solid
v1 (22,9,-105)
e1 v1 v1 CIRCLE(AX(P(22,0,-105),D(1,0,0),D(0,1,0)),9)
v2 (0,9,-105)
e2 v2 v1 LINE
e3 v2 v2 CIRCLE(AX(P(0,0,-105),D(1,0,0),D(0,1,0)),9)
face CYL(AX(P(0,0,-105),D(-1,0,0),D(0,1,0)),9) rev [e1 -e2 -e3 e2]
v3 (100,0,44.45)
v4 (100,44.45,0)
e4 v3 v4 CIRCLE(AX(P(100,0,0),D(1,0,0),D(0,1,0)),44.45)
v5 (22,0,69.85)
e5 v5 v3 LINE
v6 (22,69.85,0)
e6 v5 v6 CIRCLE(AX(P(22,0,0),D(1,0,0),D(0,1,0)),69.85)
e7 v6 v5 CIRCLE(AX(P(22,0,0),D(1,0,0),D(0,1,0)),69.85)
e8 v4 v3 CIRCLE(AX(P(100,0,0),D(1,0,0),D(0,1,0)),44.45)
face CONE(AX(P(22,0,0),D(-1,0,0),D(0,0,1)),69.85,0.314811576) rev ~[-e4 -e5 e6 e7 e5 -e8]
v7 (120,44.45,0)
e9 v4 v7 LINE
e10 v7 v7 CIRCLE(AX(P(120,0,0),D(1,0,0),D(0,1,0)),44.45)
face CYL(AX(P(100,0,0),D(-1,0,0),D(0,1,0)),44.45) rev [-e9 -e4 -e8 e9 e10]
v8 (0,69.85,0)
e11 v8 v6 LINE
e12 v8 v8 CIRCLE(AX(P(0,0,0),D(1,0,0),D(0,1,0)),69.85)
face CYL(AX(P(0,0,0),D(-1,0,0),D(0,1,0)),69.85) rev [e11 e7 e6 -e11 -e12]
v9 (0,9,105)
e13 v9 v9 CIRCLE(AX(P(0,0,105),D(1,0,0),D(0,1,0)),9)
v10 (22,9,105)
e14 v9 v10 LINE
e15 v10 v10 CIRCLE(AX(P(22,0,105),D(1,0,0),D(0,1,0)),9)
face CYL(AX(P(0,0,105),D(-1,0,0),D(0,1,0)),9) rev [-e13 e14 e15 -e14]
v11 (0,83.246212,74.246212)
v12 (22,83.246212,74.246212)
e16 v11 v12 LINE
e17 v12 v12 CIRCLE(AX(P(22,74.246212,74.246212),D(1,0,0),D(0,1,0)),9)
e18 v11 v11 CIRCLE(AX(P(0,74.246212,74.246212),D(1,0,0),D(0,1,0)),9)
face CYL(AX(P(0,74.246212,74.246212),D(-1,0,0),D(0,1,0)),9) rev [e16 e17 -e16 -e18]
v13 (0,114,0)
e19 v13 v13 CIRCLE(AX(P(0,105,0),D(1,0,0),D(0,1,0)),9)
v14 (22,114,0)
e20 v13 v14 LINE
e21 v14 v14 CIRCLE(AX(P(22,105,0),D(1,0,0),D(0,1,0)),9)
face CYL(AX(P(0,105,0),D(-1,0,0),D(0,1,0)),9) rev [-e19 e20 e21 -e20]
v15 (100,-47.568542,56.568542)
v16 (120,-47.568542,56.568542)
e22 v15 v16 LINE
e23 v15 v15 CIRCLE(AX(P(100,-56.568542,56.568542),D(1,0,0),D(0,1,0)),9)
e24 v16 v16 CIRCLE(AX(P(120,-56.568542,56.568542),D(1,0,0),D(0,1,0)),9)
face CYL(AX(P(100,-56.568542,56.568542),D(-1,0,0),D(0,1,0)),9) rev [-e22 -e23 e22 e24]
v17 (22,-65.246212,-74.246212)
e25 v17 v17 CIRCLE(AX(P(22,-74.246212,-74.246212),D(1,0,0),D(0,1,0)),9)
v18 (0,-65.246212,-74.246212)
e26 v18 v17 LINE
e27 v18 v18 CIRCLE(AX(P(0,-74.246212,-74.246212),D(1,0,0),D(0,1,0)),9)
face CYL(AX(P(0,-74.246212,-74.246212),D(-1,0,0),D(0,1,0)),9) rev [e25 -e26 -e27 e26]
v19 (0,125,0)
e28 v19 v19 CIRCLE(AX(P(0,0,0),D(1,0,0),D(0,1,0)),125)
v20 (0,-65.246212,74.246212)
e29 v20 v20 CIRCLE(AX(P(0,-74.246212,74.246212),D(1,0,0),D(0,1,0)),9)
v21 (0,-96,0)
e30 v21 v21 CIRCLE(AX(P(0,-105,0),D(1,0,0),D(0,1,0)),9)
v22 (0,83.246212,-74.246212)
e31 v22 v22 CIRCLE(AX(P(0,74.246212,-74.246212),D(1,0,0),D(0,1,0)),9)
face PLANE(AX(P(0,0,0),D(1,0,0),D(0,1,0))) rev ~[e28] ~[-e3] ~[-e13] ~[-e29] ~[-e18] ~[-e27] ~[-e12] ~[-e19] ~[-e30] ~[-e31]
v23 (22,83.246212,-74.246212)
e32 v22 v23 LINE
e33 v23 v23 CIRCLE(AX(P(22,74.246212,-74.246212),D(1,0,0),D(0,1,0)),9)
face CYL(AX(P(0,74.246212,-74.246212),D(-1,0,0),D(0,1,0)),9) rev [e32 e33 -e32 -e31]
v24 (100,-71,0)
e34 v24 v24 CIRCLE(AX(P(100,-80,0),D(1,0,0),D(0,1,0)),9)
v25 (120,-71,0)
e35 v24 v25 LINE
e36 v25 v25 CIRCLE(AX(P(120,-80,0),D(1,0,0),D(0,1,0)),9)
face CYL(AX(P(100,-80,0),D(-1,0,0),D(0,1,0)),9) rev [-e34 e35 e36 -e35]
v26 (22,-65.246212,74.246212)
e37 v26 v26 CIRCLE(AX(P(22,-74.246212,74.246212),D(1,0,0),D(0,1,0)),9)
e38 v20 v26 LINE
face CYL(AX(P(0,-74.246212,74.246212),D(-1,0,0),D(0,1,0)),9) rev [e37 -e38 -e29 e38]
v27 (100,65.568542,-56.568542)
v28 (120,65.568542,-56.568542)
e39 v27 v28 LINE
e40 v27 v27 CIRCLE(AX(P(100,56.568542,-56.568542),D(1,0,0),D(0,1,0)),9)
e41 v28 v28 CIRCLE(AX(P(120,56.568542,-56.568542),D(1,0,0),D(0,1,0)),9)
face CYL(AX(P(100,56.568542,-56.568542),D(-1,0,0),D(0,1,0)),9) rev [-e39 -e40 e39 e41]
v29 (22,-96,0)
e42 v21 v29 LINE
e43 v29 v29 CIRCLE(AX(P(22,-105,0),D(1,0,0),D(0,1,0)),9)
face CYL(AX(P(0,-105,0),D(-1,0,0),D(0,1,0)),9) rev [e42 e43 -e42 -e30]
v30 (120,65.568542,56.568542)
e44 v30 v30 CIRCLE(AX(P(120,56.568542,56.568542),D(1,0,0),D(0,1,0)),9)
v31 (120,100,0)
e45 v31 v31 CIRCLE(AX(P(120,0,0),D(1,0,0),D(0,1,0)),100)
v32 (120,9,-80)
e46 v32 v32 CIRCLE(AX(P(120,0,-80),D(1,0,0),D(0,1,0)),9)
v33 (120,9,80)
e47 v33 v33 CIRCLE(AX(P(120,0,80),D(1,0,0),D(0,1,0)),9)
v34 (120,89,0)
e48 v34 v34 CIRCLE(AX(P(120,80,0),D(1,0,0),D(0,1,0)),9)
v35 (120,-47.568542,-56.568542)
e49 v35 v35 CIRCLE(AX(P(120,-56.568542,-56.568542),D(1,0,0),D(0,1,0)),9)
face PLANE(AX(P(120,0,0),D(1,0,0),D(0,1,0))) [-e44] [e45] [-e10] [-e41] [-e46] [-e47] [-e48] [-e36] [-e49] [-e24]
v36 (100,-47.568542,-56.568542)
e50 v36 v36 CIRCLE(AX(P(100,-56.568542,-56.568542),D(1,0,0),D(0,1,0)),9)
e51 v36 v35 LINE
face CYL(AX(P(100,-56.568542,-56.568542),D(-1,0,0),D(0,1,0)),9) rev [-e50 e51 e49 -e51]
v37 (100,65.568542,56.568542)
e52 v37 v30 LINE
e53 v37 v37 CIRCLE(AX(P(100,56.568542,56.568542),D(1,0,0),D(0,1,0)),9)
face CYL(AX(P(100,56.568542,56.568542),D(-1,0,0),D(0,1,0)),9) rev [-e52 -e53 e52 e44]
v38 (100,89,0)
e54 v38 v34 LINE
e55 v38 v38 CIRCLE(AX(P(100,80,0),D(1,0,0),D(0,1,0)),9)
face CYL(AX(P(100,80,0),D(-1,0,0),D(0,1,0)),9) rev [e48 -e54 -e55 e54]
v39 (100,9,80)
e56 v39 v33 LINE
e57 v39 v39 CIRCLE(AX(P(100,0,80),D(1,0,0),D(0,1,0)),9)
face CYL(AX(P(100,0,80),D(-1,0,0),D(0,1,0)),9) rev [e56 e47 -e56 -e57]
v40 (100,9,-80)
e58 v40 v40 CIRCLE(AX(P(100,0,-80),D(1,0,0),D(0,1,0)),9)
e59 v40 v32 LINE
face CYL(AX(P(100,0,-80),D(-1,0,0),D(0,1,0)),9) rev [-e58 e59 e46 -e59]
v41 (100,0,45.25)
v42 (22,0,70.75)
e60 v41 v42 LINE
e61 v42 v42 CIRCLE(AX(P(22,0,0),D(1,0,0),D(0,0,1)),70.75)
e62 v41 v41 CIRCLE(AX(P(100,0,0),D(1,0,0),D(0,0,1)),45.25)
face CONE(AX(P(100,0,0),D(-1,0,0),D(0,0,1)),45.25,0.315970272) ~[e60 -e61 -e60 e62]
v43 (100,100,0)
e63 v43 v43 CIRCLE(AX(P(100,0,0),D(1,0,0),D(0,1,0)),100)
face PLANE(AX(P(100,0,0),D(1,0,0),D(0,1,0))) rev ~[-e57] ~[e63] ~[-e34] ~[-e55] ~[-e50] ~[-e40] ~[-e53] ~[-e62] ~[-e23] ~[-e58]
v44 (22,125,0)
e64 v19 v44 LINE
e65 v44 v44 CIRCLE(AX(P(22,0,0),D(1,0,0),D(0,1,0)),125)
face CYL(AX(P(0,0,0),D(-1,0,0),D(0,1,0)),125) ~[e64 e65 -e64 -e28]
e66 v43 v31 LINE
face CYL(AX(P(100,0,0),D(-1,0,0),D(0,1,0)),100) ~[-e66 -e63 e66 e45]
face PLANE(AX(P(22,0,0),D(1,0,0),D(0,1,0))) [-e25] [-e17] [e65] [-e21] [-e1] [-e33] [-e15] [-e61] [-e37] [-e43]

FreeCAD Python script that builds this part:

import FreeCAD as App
import Part
import Sketcher
from FreeCAD import Vector

doc = App.newDocument("Part")
body = doc.addObject("PartDesign::Body", "Body")

# Sketch on YZ plane
sketch1 = body.newObject("Sketcher::SketchObject", "Sketch")
sketch1.AttachmentSupport = (doc.getObject("YZ_Plane"), [""])
sketch1.MapMode = "FlatFace"
sketch1.addGeometry([
    Part.Circle(Vector(0, 0, 0), Vector(0, 0, 1), 125),  # 0
    Part.Circle(Vector(-74.246212, -74.246212, 0), Vector(0, 0, 1), 9),  # 1
    Part.Circle(Vector(0, -105, 0), Vector(0, 0, 1), 9),  # 2
    Part.Circle(Vector(74.246212, -74.246212, 0), Vector(0, 0, 1), 9),  # 3
    Part.Circle(Vector(-105, 0, 0), Vector(0, 0, 1), 9),  # 4
    Part.Circle(Vector(-74.246212, 74.246212, 0), Vector(0, 0, 1), 9),  # 5
    Part.Circle(Vector(0, 0, 0), Vector(0, 0, 1), 69.85),  # 6
    Part.Circle(Vector(105, 0, 0), Vector(0, 0, 1), 9),  # 7
    Part.Circle(Vector(0, 105, 0), Vector(0, 0, 1), 9),  # 8
    Part.Circle(Vector(74.246212, 74.246212, 0), Vector(0, 0, 1), 9),  # 9
], False)
sketch1.addConstraint([
    Sketcher.Constraint("Coincident", 0, 3, -1, 1),
    Sketcher.Constraint("Coincident", 6, 3, -1, 1),
    Sketcher.Constraint("Equal", 1, 2),
    Sketcher.Constraint("Equal", 2, 3),
    Sketcher.Constraint("Equal", 3, 4),
    Sketcher.Constraint("Equal", 4, 5),
    Sketcher.Constraint("Equal", 5, 7),
    Sketcher.Constraint("Equal", 7, 8),
    Sketcher.Constraint("Equal", 8, 9),
    Sketcher.Constraint("Symmetric", 3, 3, 5, 3, -1, 1),
    Sketcher.Constraint("Symmetric", 4, 3, 7, 3, -1, 1),
    Sketcher.Constraint("Symmetric", 2, 3, 8, 3, -1, 1),
    Sketcher.Constraint("Symmetric", 1, 3, 9, 3, -1, 1),
    Sketcher.Constraint("Symmetric", 1, 3, 3, 3, -2),
    Sketcher.Constraint("PointOnObject", 2, 3, -2),
    Sketcher.Constraint("PointOnObject", 4, 3, -1),
    Sketcher.Constraint("Diameter", 0, 250.0),
    Sketcher.Constraint("Diameter", 1, 18.0),
    Sketcher.Constraint("Diameter", 6, 139.7),
    Sketcher.Constraint("DistanceY", 2, 3, -1, 1, 105.0),
    Sketcher.Constraint("DistanceX", 4, 3, -1, 1, 105.0),
    Sketcher.Constraint("DistanceX", 1, 3, -1, 1, 74.246212),
    Sketcher.Constraint("DistanceY", 1, 3, -1, 1, 74.246212),
])
pad1 = body.newObject("PartDesign::Pad", "Pad")
pad1.Profile = sketch1
pad1.Length = 22
body2 = doc.addObject("PartDesign::Body", "Body001")

# Sketch on YZ plane
sketch2 = body2.newObject("Sketcher::SketchObject", "Sketch001")
sketch2.AttachmentSupport = (doc.getObject("YZ_Plane001"), [""])
sketch2.MapMode = "FlatFace"
sketch2.AttachmentOffset = App.Placement(Vector(0, 0, 100), App.Rotation())
sketch2.addGeometry([
    Part.Circle(Vector(0, 0, 0), Vector(0, 0, 1), 100),  # 0
    Part.Circle(Vector(-56.568542, -56.568542, 0), Vector(0, 0, 1), 9),  # 1
    Part.Circle(Vector(0, -80, 0), Vector(0, 0, 1), 9),  # 2
    Part.Circle(Vector(56.568542, -56.568542, 0), Vector(0, 0, 1), 9),  # 3
    Part.Circle(Vector(-80, 0, 0), Vector(0, 0, 1), 9),  # 4
    Part.Circle(Vector(-56.568542, 56.568542, 0), Vector(0, 0, 1), 9),  # 5
    Part.Circle(Vector(0, 0, 0), Vector(0, 0, 1), 44.45),  # 6
    Part.Circle(Vector(80, 0, 0), Vector(0, 0, 1), 9),  # 7
    Part.Circle(Vector(0, 80, 0), Vector(0, 0, 1), 9),  # 8
    Part.Circle(Vector(56.568542, 56.568542, 0), Vector(0, 0, 1), 9),  # 9
], False)
sketch2.addConstraint([
    Sketcher.Constraint("Coincident", 0, 3, -1, 1),
    Sketcher.Constraint("Coincident", 6, 3, -1, 1),
    Sketcher.Constraint("Equal", 1, 2),
    Sketcher.Constraint("Equal", 2, 3),
    Sketcher.Constraint("Equal", 3, 4),
    Sketcher.Constraint("Equal", 4, 5),
    Sketcher.Constraint("Equal", 5, 7),
    Sketcher.Constraint("Equal", 7, 8),
    Sketcher.Constraint("Equal", 8, 9),
    Sketcher.Constraint("Symmetric", 3, 3, 5, 3, -1, 1),
    Sketcher.Constraint("Symmetric", 4, 3, 7, 3, -1, 1),
    Sketcher.Constraint("Symmetric", 2, 3, 8, 3, -1, 1),
    Sketcher.Constraint("Symmetric", 1, 3, 9, 3, -1, 1),
    Sketcher.Constraint("Symmetric", 1, 3, 3, 3, -2),
    Sketcher.Constraint("PointOnObject", 2, 3, -2),
    Sketcher.Constraint("PointOnObject", 4, 3, -1),
    Sketcher.Constraint("Diameter", 0, 200.0),
    Sketcher.Constraint("Diameter", 1, 18.0),
    Sketcher.Constraint("Diameter", 6, 88.9),
    Sketcher.Constraint("DistanceY", 2, 3, -1, 1, 80.0),
    Sketcher.Constraint("DistanceX", 4, 3, -1, 1, 80.0),
    Sketcher.Constraint("DistanceX", 4, 3, 3, 3, 136.568542),
    Sketcher.Constraint("DistanceY", 2, 3, 5, 3, 136.568542),
])
pad2 = body2.newObject("PartDesign::Pad", "Pad001")
pad2.Profile = sketch2
pad2.Length = 20
body.AllowCompound = True
doc.recompute()

boolean = body.newObject("PartDesign::Boolean", "Boolean")
boolean.Type = "Fuse"
boolean.addObjects([body2])

# Sketch on XZ plane
sketch3 = body.newObject("Sketcher::SketchObject", "Sketch002")
sketch3.AttachmentSupport = (doc.getObject("XZ_Plane"), [""])
sketch3.MapMode = "FlatFace"
sketch3.addGeometry([
    Part.LineSegment(Vector(100, 45.25, 0), Vector(22, 70.75, 0)),
    Part.LineSegment(Vector(22, 70.75, 0), Vector(22, 69.85, 0)),
    Part.LineSegment(Vector(22, 69.85, 0), Vector(100, 44.45, 0)),
    Part.LineSegment(Vector(100, 44.45, 0), Vector(100, 45.25, 0)),
], False)
sketch3.addConstraint([
    Sketcher.Constraint("Coincident", 0, 2, 1, 1),
    Sketcher.Constraint("Coincident", 1, 2, 2, 1),
    Sketcher.Constraint("Coincident", 2, 2, 3, 1),
    Sketcher.Constraint("Coincident", 3, 2, 0, 1),
    Sketcher.Constraint("Vertical", 1),
    Sketcher.Constraint("Vertical", 3),
    Sketcher.Constraint("DistanceY", 1, 2, 1, 1, 0.9),
    Sketcher.Constraint("DistanceY", 3, 1, 3, 2, 0.8),
    Sketcher.Constraint("DistanceX", -1, 1, 0, 2, 22.0),
    Sketcher.Constraint("DistanceX", -1, 1, 2, 2, 100.0),
    Sketcher.Constraint("DistanceY", 2, 2, 1, 2, 25.4),
    Sketcher.Constraint("DistanceY", -1, 1, 0, 2, 70.75),
])
revolution = body.newObject("PartDesign::Revolution", "Revolution")
revolution.Profile = sketch3
revolution.ReferenceAxis = (sketch3, ["H_Axis"])
revolution.Angle = 360

doc.recompute()
